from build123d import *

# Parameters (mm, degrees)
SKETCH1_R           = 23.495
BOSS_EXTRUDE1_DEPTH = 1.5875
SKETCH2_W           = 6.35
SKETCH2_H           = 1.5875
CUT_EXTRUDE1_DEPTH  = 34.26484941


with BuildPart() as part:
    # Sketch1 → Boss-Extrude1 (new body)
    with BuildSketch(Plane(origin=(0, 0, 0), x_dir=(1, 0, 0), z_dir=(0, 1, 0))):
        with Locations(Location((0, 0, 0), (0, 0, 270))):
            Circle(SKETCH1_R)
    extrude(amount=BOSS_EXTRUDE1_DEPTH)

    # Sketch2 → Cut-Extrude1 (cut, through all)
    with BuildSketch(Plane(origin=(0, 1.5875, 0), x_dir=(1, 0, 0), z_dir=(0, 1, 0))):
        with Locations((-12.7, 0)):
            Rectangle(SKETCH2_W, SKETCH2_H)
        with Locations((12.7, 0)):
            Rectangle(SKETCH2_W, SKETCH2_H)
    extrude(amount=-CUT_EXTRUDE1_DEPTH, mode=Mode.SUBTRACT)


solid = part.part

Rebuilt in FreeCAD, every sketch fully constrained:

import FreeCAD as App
import Part
import Sketcher
Q = App.Units.Quantity


def add_polygon(sketch, points):
    """Adds a closed chain of lines whose ends are joined by coincident constraints."""
    first, n = sketch.GeometryCount, len(points)
    for a, b in zip(points, points[1:] + points[:1]):
        sketch.addGeometry(Part.LineSegment(App.Vector(*a, 0), App.Vector(*b, 0)), False)
    for i in range(n):
        sketch.addConstraint(Sketcher.Constraint("Coincident", first + i, 2, first + (i + 1) % n, 1))

doc = App.newDocument("Part")
body = doc.addObject("PartDesign::Body", "Body")

sketch1 = body.newObject("Sketcher::SketchObject", "Sketch")
sketch1.AttachmentSupport = (doc.getObject("XZ_Plane"), [""])
sketch1.MapMode = "FlatFace"
sketch1.addGeometry(Part.Circle(App.Vector(0, 0, 0), App.Vector(0, 0, 1), 23), False)
sketch1.addConstraint([
    Sketcher.Constraint("Coincident", 0, 3, -1, 1),
    Sketcher.Constraint("Diameter", 0, Q("1.85 in")),
])
pad1 = body.newObject("PartDesign::Pad", "Pad")
pad1.Profile = sketch1
pad1.Length = Q("0.0625 in")
pad1.Reversed = True

sketch2 = body.newObject("Sketcher::SketchObject", "Sketch001")
sketch2.AttachmentSupport = (doc.getObject("XZ_Plane"), [""])
sketch2.MapMode = "FlatFace"
sketch2.AttachmentOffset = App.Placement(App.Vector(0, 0, -0.0625 * 25.4), App.Rotation())
add_polygon(sketch2, [(-15.9, -0.8), (-15.9, 0.8), (-9.5, 0.8), (-9.5, -0.8)])
add_polygon(sketch2, [(9.5, -0.8), (9.5, 0.8), (15.9, 0.8), (15.9, -0.8)])
sketch2.addConstraint([
    Sketcher.Constraint("Vertical", 0),
    Sketcher.Constraint("Horizontal", 1),
    Sketcher.Constraint("Vertical", 2),
    Sketcher.Constraint("Horizontal", 3),
    Sketcher.Constraint("Vertical", 4),
    Sketcher.Constraint("Horizontal", 5),
    Sketcher.Constraint("Vertical", 6),
    Sketcher.Constraint("Horizontal", 7),
    Sketcher.Constraint("Symmetric", 2, 2, 4, 2, -1, 1),
    Sketcher.Constraint("Symmetric", 0, 2, 6, 2, -1, 1),
    Sketcher.Constraint("Horizontal", 1, 2, 4, 2),
    Sketcher.Constraint("DistanceX", 0, 2, 4, 2, Q("1 in")),
    Sketcher.Constraint("DistanceX", 1, 1, 1, 2, Q("0.25 in")),
    Sketcher.Constraint("DistanceY", 0, 1, 0, 2, Q("0.0625 in")),
])
pocket1 = body.newObject("PartDesign::Pocket", "Pocket")
pocket1.Profile = sketch2
pocket1.Type = "ThroughAll"
pocket1.Reversed = True

doc.recompute()
